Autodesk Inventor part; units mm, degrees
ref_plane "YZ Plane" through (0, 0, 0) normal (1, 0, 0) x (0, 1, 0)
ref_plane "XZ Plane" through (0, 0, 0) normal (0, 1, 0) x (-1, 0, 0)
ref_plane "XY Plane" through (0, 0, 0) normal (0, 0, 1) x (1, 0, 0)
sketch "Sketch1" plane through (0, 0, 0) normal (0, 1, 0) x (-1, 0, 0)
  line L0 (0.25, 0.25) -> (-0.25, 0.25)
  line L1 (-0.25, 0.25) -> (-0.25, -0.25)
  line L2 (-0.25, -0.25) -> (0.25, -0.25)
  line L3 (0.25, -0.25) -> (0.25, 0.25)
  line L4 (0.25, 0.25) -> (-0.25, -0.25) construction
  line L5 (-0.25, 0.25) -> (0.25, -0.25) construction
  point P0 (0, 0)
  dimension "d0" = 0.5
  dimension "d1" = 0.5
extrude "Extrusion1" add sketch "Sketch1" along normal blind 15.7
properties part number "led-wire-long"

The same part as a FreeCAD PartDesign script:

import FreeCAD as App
import Part
import Sketcher

V = App.Vector


def add_polygon(sketch, points):
    """Adds a closed chain of lines whose ends are joined by coincident constraints."""
    first, n = sketch.GeometryCount, len(points)
    for a, b in zip(points, points[1:] + points[:1]):
        sketch.addGeometry(Part.LineSegment(App.Vector(*a, 0), App.Vector(*b, 0)), False)
    for i in range(n):
        sketch.addConstraint(Sketcher.Constraint("Coincident", first + i, 2, first + (i + 1) % n, 1))

doc = App.newDocument("Part")
params = doc.addObject("Spreadsheet::Sheet", "Params")
for row, (alias, value) in enumerate([
    ("sketch1_width", "0.5 mm"),
    ("pad1_length", "15.7 mm"),
], start=1):
    params.set(f"A{row}", alias)
    params.set(f"B{row}", "=" + value)
    params.setAlias(f"B{row}", alias)

body = doc.addObject("PartDesign::Body", "Body")

# Sketch on XZ plane
sketch1 = doc.addObject("Sketcher::SketchObject", "Sketch")
body.addObject(sketch1)
sketch1.AttachmentSupport = (doc.XZ_Plane, [""])
sketch1.MapMode = "FlatFace"
add_polygon(sketch1, [(-0.2, -0.2), (-0.2, 0.2), (0.2, 0.2), (0.2, -0.2)])  # lines 0-3
sketch1.addConstraint([
    Sketcher.Constraint("Vertical", 0),
    Sketcher.Constraint("Horizontal", 1),
    Sketcher.Constraint("Vertical", 2),
    Sketcher.Constraint("Horizontal", 3),
    Sketcher.Constraint("Symmetric", 0, 2, 2, 2, -1, 1),
    Sketcher.Constraint("Equal", 3, 0),
    Sketcher.Constraint("DistanceX", 1, 1, 1, 2, 0.5),
])
sketch1.setExpression("Constraints[10]", "Params.sketch1_width")
pad1 = doc.addObject("PartDesign::Pad", "Pad")
body.addObject(pad1)
pad1.Profile = sketch1
pad1.setExpression("Length", "Params.pad1_length")
pad1.Reversed = True

doc.recompute()
